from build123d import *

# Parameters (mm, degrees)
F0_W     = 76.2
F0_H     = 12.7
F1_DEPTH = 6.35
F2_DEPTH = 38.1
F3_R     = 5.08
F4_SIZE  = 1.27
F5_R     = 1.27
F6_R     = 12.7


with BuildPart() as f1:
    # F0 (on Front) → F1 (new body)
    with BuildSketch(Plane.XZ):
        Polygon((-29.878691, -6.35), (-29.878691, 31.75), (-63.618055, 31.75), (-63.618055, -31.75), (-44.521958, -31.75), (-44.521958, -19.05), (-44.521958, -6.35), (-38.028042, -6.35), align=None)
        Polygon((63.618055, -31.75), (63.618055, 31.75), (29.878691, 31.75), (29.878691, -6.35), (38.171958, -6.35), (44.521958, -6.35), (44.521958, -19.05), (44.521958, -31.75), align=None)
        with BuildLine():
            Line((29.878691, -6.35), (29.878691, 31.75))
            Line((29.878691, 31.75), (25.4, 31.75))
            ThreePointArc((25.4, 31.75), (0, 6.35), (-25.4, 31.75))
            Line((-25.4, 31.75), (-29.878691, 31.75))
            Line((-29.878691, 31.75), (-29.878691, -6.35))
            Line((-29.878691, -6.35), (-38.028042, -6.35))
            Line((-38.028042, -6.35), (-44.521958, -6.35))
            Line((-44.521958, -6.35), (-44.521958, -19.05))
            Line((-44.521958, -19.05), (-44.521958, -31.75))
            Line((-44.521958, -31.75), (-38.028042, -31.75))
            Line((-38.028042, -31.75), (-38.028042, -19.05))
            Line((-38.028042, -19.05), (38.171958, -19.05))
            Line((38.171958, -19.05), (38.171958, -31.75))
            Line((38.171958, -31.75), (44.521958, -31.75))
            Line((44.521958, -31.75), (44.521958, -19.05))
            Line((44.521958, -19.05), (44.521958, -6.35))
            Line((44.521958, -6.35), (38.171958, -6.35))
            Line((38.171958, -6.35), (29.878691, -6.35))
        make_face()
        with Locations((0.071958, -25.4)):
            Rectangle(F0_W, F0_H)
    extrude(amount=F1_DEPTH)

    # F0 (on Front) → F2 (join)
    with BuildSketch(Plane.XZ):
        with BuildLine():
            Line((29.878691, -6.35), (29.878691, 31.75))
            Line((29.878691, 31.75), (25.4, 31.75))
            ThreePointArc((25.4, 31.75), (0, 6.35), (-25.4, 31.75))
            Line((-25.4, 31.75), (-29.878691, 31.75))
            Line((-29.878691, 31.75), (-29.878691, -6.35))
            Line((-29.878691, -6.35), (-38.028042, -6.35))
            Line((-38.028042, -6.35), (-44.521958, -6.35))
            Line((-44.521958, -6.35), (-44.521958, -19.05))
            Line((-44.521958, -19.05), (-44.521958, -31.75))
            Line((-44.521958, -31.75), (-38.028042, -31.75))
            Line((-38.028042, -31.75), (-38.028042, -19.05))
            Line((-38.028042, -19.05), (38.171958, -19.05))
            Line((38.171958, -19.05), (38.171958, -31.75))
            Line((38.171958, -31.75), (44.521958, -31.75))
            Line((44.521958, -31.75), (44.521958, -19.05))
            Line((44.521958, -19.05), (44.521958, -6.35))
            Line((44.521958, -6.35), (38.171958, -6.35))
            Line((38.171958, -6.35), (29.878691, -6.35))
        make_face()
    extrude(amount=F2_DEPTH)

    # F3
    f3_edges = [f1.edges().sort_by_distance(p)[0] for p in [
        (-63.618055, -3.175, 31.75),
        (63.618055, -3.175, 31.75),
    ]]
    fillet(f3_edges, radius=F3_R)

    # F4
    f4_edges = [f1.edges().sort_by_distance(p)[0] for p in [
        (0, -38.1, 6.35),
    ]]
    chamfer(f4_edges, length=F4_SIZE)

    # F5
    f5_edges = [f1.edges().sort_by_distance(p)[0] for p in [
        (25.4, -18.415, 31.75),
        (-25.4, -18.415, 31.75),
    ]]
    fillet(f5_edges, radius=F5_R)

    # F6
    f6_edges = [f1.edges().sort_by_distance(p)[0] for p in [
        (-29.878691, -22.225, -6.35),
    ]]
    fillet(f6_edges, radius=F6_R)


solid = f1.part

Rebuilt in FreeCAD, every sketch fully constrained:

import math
import FreeCAD as App
import Part
import Sketcher
Q = App.Units.Quantity


def edges_at(feature, points):
    """Names of the edges that pass closest to the given points."""
    edges = feature.Shape.Edges
    near = lambda p: min(range(len(edges)), key=lambda i: edges[i].distToShape(Part.Vertex(*p))[0])
    return sorted({f"Edge{near(p) + 1}" for p in points})

doc = App.newDocument("Part")
body = doc.addObject("PartDesign::Body", "Body")

sketch1 = doc.addObject("Sketcher::SketchObject", "Sketch")
body.addObject(sketch1)
sketch1.AttachmentSupport = (doc.XZ_Plane, [""])
sketch1.MapMode = "FlatFace"
sketch1.addGeometry([
    Part.LineSegment(App.Vector(-64, 32, 0), App.Vector(-64, -32, 0)),
    Part.LineSegment(App.Vector(-64, -32, 0), App.Vector(64, -32, 0)),
    Part.LineSegment(App.Vector(64, -32, 0), App.Vector(64, 32, 0)),
    Part.LineSegment(App.Vector(64, 32, 0), App.Vector(25, 32, 0)),
    Part.ArcOfCircle(Part.Circle(App.Vector(0, 32, 0), App.Vector(0, 0, 1), 25), math.radians(180), math.radians(360)),
    Part.LineSegment(App.Vector(-25, 32, 0), App.Vector(-64, 32, 0)),
], False)
sketch1.addConstraint([
    Sketcher.Constraint("Coincident", 0, 2, 1, 1),
    Sketcher.Constraint("Coincident", 1, 2, 2, 1),
    Sketcher.Constraint("Coincident", 2, 2, 3, 1),
    Sketcher.Constraint("Coincident", 3, 2, 4, 2),
    Sketcher.Constraint("Coincident", 4, 1, 5, 1),
    Sketcher.Constraint("Coincident", 5, 2, 0, 1),
    Sketcher.Constraint("Vertical", 0),
    Sketcher.Constraint("Horizontal", 1),
    Sketcher.Constraint("Vertical", 2),
    Sketcher.Constraint("Horizontal", 3),
    Sketcher.Constraint("Horizontal", 5),
    Sketcher.Constraint("Symmetric", 0, 2, 2, 2, -1, 1),
    Sketcher.Constraint("Symmetric", 3, 2, 4, 1, -2),
    Sketcher.Constraint("Horizontal", 4, 3, 2, 2),
    Sketcher.Constraint("Radius", 4, Q("1 in")),
    Sketcher.Constraint("DistanceY", 0, 2, 0, 1, Q("2.5 in")),
    Sketcher.Constraint("DistanceX", 1, 1, 1, 2, 127.23611),
])
pad1 = doc.addObject("PartDesign::Pad", "Pad")
body.addObject(pad1)
pad1.Profile = sketch1
pad1.Length = Q("0.25 in")

sketch2 = doc.addObject("Sketcher::SketchObject", "Sketch001")
body.addObject(sketch2)
sketch2.AttachmentSupport = (doc.XZ_Plane, [""])
sketch2.MapMode = "FlatFace"
sketch2.addGeometry([
    Part.LineSegment(App.Vector(29.9, -6.3, 0), App.Vector(29.9, 31.8, 0)),
    Part.LineSegment(App.Vector(29.9, 31.8, 0), App.Vector(25.4, 31.8, 0)),
    Part.ArcOfCircle(Part.Circle(App.Vector(0, 31.8, 0), App.Vector(0, 0, 1), 25.4), math.radians(180), math.radians(360)),
    Part.LineSegment(App.Vector(-25.4, 31.8, 0), App.Vector(-29.9, 31.8, 0)),
    Part.LineSegment(App.Vector(-29.9, 31.8, 0), App.Vector(-29.9, -6.3, 0)),
    Part.LineSegment(App.Vector(-29.9, -6.3, 0), App.Vector(-44.5, -6.3, 0)),
    Part.LineSegment(App.Vector(-44.5, -6.3, 0), App.Vector(-44.5, -31.8, 0)),
    Part.LineSegment(App.Vector(-44.5, -31.8, 0), App.Vector(-38, -31.8, 0)),
    Part.LineSegment(App.Vector(-38, -31.8, 0), App.Vector(-38, -19.1, 0)),
    Part.LineSegment(App.Vector(-38, -19.1, 0), App.Vector(38.2, -19.1, 0)),
    Part.LineSegment(App.Vector(38.2, -19.1, 0), App.Vector(38.2, -31.8, 0)),
    Part.LineSegment(App.Vector(38.2, -31.8, 0), App.Vector(44.5, -31.8, 0)),
    Part.LineSegment(App.Vector(44.5, -31.8, 0), App.Vector(44.5, -6.3, 0)),
    Part.LineSegment(App.Vector(44.5, -6.3, 0), App.Vector(29.9, -6.3, 0)),
], False)
sketch2.addConstraint([
    Sketcher.Constraint("Coincident", 0, 2, 1, 1),
    Sketcher.Constraint("Coincident", 1, 2, 2, 2),
    Sketcher.Constraint("Coincident", 2, 1, 3, 1),
    Sketcher.Constraint("Coincident", 3, 2, 4, 1),
    Sketcher.Constraint("Coincident", 4, 2, 5, 1),
    Sketcher.Constraint("Coincident", 5, 2, 6, 1),
    Sketcher.Constraint("Coincident", 6, 2, 7, 1),
    Sketcher.Constraint("Coincident", 7, 2, 8, 1),
    Sketcher.Constraint("Coincident", 8, 2, 9, 1),
    Sketcher.Constraint("Coincident", 9, 2, 10, 1),
    Sketcher.Constraint("Coincident", 10, 2, 11, 1),
    Sketcher.Constraint("Coincident", 11, 2, 12, 1),
    Sketcher.Constraint("Coincident", 12, 2, 13, 1),
    Sketcher.Constraint("Coincident", 13, 2, 0, 1),
    Sketcher.Constraint("Vertical", 0),
    Sketcher.Constraint("Horizontal", 1),
    Sketcher.Constraint("Horizontal", 3),
    Sketcher.Constraint("Vertical", 4),
    Sketcher.Constraint("Horizontal", 5),
    Sketcher.Constraint("Vertical", 6),
    Sketcher.Constraint("Horizontal", 7),
    Sketcher.Constraint("Vertical", 8),
    Sketcher.Constraint("Horizontal", 9),
    Sketcher.Constraint("Vertical", 10),
    Sketcher.Constraint("Horizontal", 11),
    Sketcher.Constraint("Vertical", 12),
    Sketcher.Constraint("Horizontal", 13),
    Sketcher.Constraint("Symmetric", 1, 2, 2, 1, -2),
    Sketcher.Constraint("Symmetric", 6, 2, 11, 2, -2),
    Sketcher.Constraint("Symmetric", 4, 2, 13, 2, -2),
    Sketcher.Constraint("Horizontal", 2, 3, 0, 2),
    Sketcher.Constraint("Radius", 2, Q("1 in")),
    Sketcher.Constraint("DistanceX", 9, 1, 9, 2, Q("3 in")),
    Sketcher.Constraint("DistanceY", 6, 2, 6, 1, Q("1 in")),
    Sketcher.Constraint("DistanceY", 0, 1, 0, 2, Q("1.5 in")),
    Sketcher.Constraint("DistanceY", 8, 1, 8, 2, Q("0.5 in")),
    Sketcher.Constraint("DistanceX", 11, 1, 11, 2, Q("0.25 in")),
    Sketcher.Constraint("DistanceY", -1, 1, 2, 3, Q("1.25 in")),
    Sketcher.Constraint("DistanceX", 1, 2, 1, 1, 4.478691),
    Sketcher.Constraint("DistanceX", 5, 2, 5, 1, 14.643267),
])
pad2 = doc.addObject("PartDesign::Pad", "Pad001")
body.addObject(pad2)
pad2.Profile = sketch2
pad2.Length = Q("1.5 in")
doc.recompute()

fillet = doc.addObject("PartDesign::Fillet", "Fillet")
body.addObject(fillet)
fillet.Base = (pad2, edges_at(pad2, [(-63.618, -3.175, 31.75), (63.618, -3.175, 31.75)]))
fillet.Radius = Q("0.2 in")
doc.recompute()

chamfer = doc.addObject("PartDesign::Chamfer", "Chamfer")
body.addObject(chamfer)
chamfer.Base = (fillet, edges_at(fillet, [(0, -38.1, 6.35)]))
chamfer.Size = Q("0.05 in")
doc.recompute()

fillet2 = doc.addObject("PartDesign::Fillet", "Fillet001")
body.addObject(fillet2)
fillet2.Base = (chamfer, edges_at(chamfer, [(25.4, -18.415, 31.75), (-25.4, -18.415, 31.75)]))
fillet2.Radius = Q("0.05 in")
doc.recompute()

fillet3 = doc.addObject("PartDesign::Fillet", "Fillet002")
body.addObject(fillet3)
fillet3.Base = (fillet2, edges_at(fillet2, [(-29.879, -22.225, -6.35)]))
fillet3.Radius = Q("0.5 in")

doc.recompute()
